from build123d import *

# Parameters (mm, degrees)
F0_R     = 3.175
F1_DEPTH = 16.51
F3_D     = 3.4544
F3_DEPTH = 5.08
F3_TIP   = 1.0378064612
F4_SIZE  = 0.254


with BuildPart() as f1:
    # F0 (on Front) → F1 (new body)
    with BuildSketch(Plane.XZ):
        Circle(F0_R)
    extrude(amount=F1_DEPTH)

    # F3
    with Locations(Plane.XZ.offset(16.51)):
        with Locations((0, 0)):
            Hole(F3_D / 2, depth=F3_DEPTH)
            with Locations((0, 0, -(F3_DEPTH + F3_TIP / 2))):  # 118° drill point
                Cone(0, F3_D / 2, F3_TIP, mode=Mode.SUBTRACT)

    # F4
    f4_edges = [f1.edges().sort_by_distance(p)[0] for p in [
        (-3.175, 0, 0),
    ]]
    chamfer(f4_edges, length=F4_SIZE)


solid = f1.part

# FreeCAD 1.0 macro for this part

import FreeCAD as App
import Part
import Sketcher
Q = App.Units.Quantity


def edges_at(feature, points):
    """Names of the edges that pass closest to the given points."""
    edges = feature.Shape.Edges
    near = lambda p: min(range(len(edges)), key=lambda i: edges[i].distToShape(Part.Vertex(*p))[0])
    return sorted({f"Edge{near(p) + 1}" for p in points})

doc = App.newDocument("Part")
body = doc.addObject("PartDesign::Body", "Body")

# Sketch on XZ plane
sketch1 = body.newObject("Sketcher::SketchObject", "Sketch")
sketch1.AttachmentSupport = (doc.getObject("XZ_Plane"), [""])
sketch1.MapMode = "FlatFace"
sketch1.addGeometry(Part.Circle(App.Vector(0, 0, 0), App.Vector(0, 0, 1), 3.2), False)
sketch1.addConstraint([
    Sketcher.Constraint("Coincident", 0, 3, -1, 1),
    Sketcher.Constraint("Diameter", 0, Q("0.25 in")),
])
pad1 = body.newObject("PartDesign::Pad", "Pad")
pad1.Profile = sketch1
pad1.Length = Q("0.65 in")

# Sketch on XZ plane
sketch2 = body.newObject("Sketcher::SketchObject", "Sketch001")
sketch2.AttachmentSupport = (doc.getObject("XZ_Plane"), [""])
sketch2.MapMode = "FlatFace"
sketch2.AttachmentOffset = App.Placement(App.Vector(0, 0, 0.65 * 25.4), App.Rotation())
sketch2.addGeometry(Part.Circle(App.Vector(0, 0, 0), App.Vector(0, 0, 1), 1.7), False)
sketch2.addConstraint([
    Sketcher.Constraint("Coincident", 0, 3, -1, 1),
    Sketcher.Constraint("Diameter", 0, Q("0.136 in")),
])
doc.recompute()
hole = body.newObject("PartDesign::Hole", "Hole")
hole.Profile = sketch2
hole.ThreadType = "None"
hole.Diameter = Q("0.136 in")
hole.DepthType = "Dimension"
hole.Depth = Q("0.2 in")
hole.DrillPoint = "Angled"
hole.DrillPointAngle = 118
doc.recompute()

chamfer = body.newObject("PartDesign::Chamfer", "Chamfer")
chamfer.Base = (hole, edges_at(hole, [(-3.175, 0, 0)]))
chamfer.Size = Q("0.01 in")

doc.recompute()
